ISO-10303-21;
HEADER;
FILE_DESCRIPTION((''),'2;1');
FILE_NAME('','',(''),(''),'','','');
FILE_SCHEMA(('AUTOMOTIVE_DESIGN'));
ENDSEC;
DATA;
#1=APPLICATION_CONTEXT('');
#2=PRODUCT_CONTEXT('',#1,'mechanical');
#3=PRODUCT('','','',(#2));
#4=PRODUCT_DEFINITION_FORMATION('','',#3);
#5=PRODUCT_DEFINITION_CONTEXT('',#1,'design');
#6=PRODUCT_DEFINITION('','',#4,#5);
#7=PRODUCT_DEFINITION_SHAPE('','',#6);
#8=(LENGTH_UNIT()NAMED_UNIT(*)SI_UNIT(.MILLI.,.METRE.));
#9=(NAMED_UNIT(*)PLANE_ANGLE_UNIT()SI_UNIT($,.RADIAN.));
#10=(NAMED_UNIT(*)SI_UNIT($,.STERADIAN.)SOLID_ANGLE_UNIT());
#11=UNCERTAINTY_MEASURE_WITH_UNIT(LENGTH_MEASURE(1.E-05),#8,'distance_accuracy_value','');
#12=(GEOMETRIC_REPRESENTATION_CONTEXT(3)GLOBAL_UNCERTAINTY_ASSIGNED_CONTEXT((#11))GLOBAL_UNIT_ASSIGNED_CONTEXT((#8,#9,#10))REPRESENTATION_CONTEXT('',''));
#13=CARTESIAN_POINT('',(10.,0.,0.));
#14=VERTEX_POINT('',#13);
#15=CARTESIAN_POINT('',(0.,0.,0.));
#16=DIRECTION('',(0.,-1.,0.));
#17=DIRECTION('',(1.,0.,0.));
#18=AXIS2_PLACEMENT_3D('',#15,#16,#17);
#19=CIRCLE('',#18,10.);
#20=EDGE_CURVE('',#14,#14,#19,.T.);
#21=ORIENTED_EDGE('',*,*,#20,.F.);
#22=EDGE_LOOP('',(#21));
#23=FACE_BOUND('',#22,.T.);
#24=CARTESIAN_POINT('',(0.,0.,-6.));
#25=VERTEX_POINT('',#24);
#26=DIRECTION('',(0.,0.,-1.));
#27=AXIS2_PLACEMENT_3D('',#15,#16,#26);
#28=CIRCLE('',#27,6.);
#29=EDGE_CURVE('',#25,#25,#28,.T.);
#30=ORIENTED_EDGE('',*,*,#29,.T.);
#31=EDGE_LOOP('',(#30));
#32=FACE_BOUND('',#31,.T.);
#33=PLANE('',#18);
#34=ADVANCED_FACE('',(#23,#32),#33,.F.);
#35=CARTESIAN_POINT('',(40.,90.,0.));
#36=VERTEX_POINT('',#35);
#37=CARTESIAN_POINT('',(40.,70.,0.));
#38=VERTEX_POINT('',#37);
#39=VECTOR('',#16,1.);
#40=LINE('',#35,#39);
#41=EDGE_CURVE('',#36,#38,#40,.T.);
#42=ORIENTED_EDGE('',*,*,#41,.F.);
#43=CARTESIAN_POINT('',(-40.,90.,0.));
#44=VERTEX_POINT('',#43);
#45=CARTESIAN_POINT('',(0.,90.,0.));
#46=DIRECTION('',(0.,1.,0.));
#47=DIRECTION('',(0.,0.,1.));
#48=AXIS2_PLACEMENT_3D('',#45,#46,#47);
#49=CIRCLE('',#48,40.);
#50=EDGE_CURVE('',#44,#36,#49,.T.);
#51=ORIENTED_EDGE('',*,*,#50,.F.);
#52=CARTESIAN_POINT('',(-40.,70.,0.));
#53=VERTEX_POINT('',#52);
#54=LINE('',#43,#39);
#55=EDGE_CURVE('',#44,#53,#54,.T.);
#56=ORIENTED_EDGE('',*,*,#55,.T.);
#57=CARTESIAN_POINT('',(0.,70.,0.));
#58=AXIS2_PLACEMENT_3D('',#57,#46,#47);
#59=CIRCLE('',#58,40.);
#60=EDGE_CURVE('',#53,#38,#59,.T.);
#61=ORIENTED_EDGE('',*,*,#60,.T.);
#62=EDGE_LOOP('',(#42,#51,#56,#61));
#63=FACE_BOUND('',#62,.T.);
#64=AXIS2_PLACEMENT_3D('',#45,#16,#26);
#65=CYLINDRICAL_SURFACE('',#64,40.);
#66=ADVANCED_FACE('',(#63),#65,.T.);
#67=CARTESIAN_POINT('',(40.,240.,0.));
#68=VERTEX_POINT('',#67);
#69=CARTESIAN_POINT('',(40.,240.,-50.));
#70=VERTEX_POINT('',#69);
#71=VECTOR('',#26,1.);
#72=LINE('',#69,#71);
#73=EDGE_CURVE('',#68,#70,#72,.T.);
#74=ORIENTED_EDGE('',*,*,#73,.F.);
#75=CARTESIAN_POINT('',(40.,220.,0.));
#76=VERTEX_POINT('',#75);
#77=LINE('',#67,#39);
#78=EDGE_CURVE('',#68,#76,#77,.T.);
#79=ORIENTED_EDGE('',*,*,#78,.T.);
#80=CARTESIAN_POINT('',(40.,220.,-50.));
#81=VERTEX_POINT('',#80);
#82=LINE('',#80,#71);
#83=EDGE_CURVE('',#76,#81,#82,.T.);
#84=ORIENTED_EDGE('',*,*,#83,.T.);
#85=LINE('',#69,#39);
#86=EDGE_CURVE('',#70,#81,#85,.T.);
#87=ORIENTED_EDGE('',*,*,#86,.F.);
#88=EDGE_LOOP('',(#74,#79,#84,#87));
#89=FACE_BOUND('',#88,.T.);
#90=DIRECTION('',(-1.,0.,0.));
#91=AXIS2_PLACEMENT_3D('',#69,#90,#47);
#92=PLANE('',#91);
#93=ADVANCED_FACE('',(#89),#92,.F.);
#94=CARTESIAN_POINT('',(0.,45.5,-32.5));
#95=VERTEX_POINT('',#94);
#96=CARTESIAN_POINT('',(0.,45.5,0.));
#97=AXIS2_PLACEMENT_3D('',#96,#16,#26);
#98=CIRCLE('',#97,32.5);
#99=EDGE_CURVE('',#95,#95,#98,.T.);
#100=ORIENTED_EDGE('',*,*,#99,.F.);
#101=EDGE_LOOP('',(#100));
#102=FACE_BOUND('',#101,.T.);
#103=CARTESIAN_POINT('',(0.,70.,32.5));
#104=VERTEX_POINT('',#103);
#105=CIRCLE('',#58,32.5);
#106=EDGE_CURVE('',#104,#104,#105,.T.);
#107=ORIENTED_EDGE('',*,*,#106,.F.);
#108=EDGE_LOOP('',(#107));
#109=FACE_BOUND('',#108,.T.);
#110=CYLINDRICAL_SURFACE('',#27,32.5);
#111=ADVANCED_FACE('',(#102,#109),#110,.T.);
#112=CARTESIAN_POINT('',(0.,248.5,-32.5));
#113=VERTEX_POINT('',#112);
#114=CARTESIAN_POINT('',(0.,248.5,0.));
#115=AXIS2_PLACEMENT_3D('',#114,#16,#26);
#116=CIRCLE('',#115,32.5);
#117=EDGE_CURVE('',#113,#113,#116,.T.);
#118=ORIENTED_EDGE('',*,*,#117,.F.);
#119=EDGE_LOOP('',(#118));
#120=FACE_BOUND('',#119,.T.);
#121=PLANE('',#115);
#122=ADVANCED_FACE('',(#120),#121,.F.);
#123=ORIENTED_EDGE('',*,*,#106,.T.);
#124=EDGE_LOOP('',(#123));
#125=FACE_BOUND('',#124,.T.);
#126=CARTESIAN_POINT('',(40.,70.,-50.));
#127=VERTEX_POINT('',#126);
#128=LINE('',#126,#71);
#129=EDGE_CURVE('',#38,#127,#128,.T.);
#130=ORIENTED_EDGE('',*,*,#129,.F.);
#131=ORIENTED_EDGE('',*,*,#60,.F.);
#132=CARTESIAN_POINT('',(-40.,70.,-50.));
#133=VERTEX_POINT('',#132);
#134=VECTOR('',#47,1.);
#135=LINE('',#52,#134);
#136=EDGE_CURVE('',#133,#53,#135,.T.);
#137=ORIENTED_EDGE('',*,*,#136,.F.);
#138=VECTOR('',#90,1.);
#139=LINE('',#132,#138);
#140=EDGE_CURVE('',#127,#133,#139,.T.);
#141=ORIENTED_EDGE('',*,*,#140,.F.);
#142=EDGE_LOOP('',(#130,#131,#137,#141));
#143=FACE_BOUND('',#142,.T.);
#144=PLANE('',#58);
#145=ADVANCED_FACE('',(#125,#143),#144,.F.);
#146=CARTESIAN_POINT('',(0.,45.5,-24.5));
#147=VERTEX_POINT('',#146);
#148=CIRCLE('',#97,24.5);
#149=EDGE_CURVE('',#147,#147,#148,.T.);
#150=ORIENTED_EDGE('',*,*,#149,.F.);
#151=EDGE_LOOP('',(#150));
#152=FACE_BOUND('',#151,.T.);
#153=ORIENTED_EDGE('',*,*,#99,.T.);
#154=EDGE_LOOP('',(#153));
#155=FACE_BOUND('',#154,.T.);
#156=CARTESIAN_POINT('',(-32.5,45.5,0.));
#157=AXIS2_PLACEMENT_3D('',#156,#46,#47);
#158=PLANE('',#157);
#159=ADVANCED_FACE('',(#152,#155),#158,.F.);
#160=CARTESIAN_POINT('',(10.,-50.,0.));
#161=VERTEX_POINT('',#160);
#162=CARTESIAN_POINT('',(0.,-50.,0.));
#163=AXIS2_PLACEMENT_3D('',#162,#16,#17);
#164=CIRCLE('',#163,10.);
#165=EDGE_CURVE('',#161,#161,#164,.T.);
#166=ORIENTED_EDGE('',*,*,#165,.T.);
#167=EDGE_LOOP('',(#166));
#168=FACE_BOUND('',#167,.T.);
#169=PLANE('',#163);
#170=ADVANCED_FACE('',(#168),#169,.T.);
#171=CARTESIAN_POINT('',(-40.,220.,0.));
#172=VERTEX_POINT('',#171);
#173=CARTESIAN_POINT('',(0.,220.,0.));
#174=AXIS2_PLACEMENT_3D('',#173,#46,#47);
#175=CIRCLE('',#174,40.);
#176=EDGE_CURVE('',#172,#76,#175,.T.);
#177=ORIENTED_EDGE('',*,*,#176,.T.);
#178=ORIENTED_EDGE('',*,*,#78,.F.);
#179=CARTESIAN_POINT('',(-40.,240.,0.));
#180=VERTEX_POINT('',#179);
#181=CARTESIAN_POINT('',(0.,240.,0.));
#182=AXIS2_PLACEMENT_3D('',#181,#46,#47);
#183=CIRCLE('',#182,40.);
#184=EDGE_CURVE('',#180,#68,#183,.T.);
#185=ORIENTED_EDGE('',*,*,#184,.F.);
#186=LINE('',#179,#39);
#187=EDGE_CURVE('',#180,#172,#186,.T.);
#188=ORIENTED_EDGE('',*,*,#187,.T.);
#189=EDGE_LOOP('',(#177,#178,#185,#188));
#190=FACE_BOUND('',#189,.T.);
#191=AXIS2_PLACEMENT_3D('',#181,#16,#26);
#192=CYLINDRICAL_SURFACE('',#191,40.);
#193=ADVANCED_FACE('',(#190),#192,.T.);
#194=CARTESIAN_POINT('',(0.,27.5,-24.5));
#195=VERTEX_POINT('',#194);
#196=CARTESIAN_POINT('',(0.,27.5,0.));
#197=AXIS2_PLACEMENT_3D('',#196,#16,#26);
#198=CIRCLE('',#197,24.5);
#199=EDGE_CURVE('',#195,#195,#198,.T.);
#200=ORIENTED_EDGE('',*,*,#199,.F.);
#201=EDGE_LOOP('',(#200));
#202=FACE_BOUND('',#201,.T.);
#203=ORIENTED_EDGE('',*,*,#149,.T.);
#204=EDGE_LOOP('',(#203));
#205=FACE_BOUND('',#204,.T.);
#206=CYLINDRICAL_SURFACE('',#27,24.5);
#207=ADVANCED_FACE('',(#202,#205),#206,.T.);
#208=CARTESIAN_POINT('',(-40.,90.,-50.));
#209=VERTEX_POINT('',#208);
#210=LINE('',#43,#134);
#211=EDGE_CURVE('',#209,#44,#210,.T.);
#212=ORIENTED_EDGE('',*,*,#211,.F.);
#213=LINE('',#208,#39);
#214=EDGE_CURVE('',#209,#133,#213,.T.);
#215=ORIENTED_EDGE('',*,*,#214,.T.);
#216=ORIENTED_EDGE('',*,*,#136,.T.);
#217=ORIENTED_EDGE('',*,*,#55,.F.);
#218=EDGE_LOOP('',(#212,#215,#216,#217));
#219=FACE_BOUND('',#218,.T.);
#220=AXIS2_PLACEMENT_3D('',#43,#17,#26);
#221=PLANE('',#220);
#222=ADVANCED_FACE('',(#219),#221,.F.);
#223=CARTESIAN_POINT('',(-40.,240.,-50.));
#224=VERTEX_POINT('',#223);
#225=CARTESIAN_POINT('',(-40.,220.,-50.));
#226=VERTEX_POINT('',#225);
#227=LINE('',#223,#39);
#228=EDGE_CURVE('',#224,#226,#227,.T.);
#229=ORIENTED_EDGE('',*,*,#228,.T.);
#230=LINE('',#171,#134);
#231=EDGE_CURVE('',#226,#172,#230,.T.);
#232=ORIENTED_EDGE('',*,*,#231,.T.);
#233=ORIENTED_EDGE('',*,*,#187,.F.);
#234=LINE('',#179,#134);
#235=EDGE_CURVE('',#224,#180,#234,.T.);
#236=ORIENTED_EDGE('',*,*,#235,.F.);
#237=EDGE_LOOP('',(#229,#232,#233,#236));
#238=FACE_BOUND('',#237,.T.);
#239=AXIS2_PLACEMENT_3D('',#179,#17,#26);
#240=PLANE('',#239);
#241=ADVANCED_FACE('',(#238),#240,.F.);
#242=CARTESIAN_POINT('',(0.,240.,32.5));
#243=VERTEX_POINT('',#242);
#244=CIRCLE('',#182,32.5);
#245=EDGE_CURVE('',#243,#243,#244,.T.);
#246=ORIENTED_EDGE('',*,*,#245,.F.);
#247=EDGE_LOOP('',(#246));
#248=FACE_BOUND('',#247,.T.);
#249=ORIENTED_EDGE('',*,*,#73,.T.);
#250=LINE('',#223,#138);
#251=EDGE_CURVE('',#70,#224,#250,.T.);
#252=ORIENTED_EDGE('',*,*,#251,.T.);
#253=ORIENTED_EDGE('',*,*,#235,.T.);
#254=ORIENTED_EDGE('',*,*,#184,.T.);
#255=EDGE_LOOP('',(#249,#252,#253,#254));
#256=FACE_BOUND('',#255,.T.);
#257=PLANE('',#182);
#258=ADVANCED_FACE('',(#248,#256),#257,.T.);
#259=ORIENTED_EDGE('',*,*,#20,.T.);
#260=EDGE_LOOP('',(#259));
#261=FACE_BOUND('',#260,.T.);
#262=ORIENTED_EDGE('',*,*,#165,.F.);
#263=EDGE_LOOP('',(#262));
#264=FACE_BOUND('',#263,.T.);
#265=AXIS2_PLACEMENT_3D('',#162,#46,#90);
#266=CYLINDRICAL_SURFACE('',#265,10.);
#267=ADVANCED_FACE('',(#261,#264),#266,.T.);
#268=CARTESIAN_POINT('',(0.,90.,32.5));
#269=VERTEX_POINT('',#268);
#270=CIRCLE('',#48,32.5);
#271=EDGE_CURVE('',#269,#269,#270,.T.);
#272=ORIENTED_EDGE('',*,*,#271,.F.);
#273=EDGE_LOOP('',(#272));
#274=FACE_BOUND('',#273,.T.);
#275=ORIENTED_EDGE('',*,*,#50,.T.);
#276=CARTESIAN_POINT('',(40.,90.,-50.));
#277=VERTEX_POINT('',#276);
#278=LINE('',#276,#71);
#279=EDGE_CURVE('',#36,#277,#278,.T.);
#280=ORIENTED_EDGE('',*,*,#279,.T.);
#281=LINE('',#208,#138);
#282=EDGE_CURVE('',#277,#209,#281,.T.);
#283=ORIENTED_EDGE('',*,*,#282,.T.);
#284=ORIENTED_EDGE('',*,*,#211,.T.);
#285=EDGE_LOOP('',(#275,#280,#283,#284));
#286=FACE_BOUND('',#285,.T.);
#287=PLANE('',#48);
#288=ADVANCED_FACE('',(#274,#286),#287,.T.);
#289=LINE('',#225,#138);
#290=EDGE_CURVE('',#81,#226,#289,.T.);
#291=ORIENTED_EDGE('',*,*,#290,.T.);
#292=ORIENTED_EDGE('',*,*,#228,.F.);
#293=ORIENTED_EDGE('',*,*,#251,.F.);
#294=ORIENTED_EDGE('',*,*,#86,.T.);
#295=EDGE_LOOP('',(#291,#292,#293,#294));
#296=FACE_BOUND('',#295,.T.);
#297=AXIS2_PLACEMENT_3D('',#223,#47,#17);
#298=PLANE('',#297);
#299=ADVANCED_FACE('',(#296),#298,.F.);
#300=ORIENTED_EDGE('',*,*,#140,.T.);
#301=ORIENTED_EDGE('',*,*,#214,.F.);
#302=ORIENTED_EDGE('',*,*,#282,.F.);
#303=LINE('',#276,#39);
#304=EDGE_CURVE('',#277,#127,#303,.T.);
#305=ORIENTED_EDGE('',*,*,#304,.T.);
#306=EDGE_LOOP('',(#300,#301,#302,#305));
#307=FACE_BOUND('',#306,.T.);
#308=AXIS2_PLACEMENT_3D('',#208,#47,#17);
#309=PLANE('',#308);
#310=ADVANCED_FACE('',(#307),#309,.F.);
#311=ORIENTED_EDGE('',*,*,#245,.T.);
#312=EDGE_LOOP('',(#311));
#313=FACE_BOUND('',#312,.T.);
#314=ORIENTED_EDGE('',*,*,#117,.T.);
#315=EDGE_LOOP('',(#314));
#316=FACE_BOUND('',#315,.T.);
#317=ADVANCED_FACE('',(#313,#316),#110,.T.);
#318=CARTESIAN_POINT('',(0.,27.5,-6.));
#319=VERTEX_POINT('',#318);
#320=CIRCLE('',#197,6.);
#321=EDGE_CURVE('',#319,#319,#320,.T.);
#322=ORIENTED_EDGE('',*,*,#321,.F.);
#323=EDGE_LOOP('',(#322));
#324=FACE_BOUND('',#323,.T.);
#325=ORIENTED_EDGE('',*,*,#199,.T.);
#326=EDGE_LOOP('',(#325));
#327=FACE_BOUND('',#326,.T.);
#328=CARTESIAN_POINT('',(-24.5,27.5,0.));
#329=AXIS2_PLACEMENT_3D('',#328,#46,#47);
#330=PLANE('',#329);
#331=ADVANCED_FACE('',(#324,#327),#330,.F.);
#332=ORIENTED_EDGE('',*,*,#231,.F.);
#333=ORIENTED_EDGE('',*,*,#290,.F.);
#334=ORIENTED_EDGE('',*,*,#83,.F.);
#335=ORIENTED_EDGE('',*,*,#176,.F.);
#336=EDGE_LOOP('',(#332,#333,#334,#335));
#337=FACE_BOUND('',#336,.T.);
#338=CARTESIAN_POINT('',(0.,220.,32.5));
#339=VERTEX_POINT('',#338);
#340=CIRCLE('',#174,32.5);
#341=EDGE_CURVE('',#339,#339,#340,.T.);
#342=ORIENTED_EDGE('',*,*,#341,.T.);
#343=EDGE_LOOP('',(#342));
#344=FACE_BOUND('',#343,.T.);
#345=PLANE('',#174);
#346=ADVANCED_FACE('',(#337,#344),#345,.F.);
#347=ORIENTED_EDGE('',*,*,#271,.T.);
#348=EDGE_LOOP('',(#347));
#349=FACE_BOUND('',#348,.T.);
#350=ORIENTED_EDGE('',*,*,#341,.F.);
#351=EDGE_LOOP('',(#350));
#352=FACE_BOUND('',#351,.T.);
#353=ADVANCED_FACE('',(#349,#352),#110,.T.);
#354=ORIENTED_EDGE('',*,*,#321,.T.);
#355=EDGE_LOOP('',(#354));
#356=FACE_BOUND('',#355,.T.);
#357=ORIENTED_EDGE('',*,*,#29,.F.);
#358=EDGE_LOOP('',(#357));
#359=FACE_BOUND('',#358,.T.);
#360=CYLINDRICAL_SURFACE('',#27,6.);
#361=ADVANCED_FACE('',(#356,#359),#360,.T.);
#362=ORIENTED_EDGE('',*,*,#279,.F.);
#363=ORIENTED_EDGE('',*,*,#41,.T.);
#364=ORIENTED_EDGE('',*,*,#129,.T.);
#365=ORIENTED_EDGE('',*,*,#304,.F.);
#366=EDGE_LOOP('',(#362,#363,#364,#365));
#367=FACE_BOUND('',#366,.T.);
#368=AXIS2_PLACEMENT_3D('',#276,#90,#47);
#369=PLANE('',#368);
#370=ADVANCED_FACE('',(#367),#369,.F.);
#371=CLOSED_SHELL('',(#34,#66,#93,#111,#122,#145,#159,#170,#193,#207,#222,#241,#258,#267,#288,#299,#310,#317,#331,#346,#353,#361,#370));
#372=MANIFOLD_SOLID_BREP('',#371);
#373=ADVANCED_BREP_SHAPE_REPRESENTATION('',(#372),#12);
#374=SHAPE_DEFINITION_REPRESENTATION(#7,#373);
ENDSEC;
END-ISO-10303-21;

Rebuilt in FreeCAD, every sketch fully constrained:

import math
import FreeCAD as App
import Part
import Sketcher
from FreeCAD import Vector
Q = App.Units.Quantity

doc = App.newDocument("Part")
body = doc.addObject("PartDesign::Body", "Body")

# Sketch on XY plane
sketch1 = body.newObject("Sketcher::SketchObject", "Sketch")
sketch1.AttachmentSupport = (doc.getObject("XY_Plane"), [""])
sketch1.MapMode = "FlatFace"
sketch1.addGeometry(Part.LineSegment(Vector(0, 248.5, 0), Vector(-32.5, 248.5, 0)), False)
sketch1.addGeometry(Part.LineSegment(Vector(-32.5, 248.5, 0), Vector(-32.5, 45.5, 0)), False)
sketch1.addGeometry(Part.LineSegment(Vector(-32.5, 45.5, 0), Vector(-24.5, 45.5, 0)), False)
sketch1.addGeometry(Part.LineSegment(Vector(-24.5, 45.5, 0), Vector(-24.5, 27.5, 0)), False)
sketch1.addGeometry(Part.LineSegment(Vector(-24.5, 27.5, 0), Vector(-6, 27.5, 0)), False)
sketch1.addGeometry(Part.LineSegment(Vector(-6, 27.5, 0), Vector(-6, 0, 0)), False)
sketch1.addGeometry(Part.LineSegment(Vector(-6, 0, 0), Vector(0, 0, 0)), False)
sketch1.addGeometry(Part.LineSegment(Vector(0, 0, 0), Vector(0, 248.5, 0)), False)
sketch1.addConstraint(Sketcher.Constraint("Coincident", 0, 2, 1, 1))
sketch1.addConstraint(Sketcher.Constraint("Coincident", 1, 2, 2, 1))
sketch1.addConstraint(Sketcher.Constraint("Coincident", 2, 2, 3, 1))
sketch1.addConstraint(Sketcher.Constraint("Coincident", 3, 2, 4, 1))
sketch1.addConstraint(Sketcher.Constraint("Coincident", 4, 2, 5, 1))
sketch1.addConstraint(Sketcher.Constraint("Coincident", 5, 2, 6, 1))
sketch1.addConstraint(Sketcher.Constraint("Coincident", 6, 2, 7, 1))
sketch1.addConstraint(Sketcher.Constraint("Coincident", 7, 2, 0, 1))
sketch1.addConstraint(Sketcher.Constraint("Horizontal", 0))
sketch1.addConstraint(Sketcher.Constraint("Vertical", 1))
sketch1.addConstraint(Sketcher.Constraint("Horizontal", 2))
sketch1.addConstraint(Sketcher.Constraint("Vertical", 3))
sketch1.addConstraint(Sketcher.Constraint("Horizontal", 4))
sketch1.addConstraint(Sketcher.Constraint("Vertical", 5))
sketch1.addConstraint(Sketcher.Constraint("Horizontal", 6))
sketch1.addConstraint(Sketcher.Constraint("Vertical", 7))
sketch1.addConstraint(Sketcher.Constraint("Coincident", 6, 2, -1, 1))
sketch1.addConstraint(Sketcher.Constraint("DistanceX", 2, 1, 2, 2, Q("8 mm")))
sketch1.addConstraint(Sketcher.Constraint("DistanceX", 6, 1, 6, 2, Q("6 mm")))
sketch1.addConstraint(Sketcher.Constraint("DistanceY", 1, 2, 1, 1, Q("203 mm")))
sketch1.addConstraint(Sketcher.Constraint("DistanceY", 3, 2, 3, 1, Q("18 mm")))
sketch1.addConstraint(Sketcher.Constraint("DistanceX", 0, 2, 0, 1, Q("32.5 mm")))
sketch1.addConstraint(Sketcher.Constraint("DistanceY", 5, 2, 5, 1, Q("27.5 mm")))
revolution = body.newObject("PartDesign::Revolution", "Revolution")
revolution.Profile = sketch1
revolution.ReferenceAxis = (sketch1, ["V_Axis"])
revolution.Angle = 360

# Sketch on XZ plane
sketch2 = body.newObject("Sketcher::SketchObject", "Sketch001")
sketch2.AttachmentSupport = (doc.getObject("XZ_Plane"), [""])
sketch2.MapMode = "FlatFace"
sketch2.AttachmentOffset = App.Placement(Vector(0, 0, -70), App.Rotation())
sketch2.addGeometry(Part.LineSegment(Vector(-40, -50, 0), Vector(-40, 0, 0)), False)
sketch2.addGeometry(Part.ArcOfCircle(Part.Circle(Vector(0, 0, 0), Vector(0, 0, 1), 40), math.radians(0), math.radians(180)), False)
sketch2.addGeometry(Part.LineSegment(Vector(40, 0, 0), Vector(40, -50, 0)), False)
sketch2.addGeometry(Part.LineSegment(Vector(40, -50, 0), Vector(-40, -50, 0)), False)
sketch2.addGeometry(Part.Circle(Vector(0, 0, 0), Vector(0, 0, 1), 32.5), False)
sketch2.addConstraint(Sketcher.Constraint("Tangent", 0, 2, 1, 2))
sketch2.addConstraint(Sketcher.Constraint("Tangent", 1, 1, 2, 1))
sketch2.addConstraint(Sketcher.Constraint("Coincident", 2, 2, 3, 1))
sketch2.addConstraint(Sketcher.Constraint("Coincident", 3, 2, 0, 1))
sketch2.addConstraint(Sketcher.Constraint("Vertical", 0))
sketch2.addConstraint(Sketcher.Constraint("Vertical", 2))
sketch2.addConstraint(Sketcher.Constraint("Horizontal", 3))
sketch2.addConstraint(Sketcher.Constraint("Coincident", 1, 3, -1, 1))
sketch2.addConstraint(Sketcher.Constraint("Coincident", 4, 3, -1, 1))
sketch2.addConstraint(Sketcher.Constraint("Diameter", 4, Q("65 mm")))
sketch2.addConstraint(Sketcher.Constraint("Radius", 1, Q("40 mm")))
sketch2.addConstraint(Sketcher.Constraint("DistanceY", 0, 1, 0, 2, Q("50 mm")))
pad1 = body.newObject("PartDesign::Pad", "Pad")
pad1.Profile = sketch2
pad1.Length = 20
pad1.Reversed = True
doc.recompute()

linearpattern = body.newObject("PartDesign::LinearPattern", "LinearPattern")
linearpattern.Originals = [pad1]
linearpattern.Direction = (doc.getObject("Y_Axis"), [""])
linearpattern.Mode = "offset"
linearpattern.Offset = 150
linearpattern.Occurrences = 2
body.Tip = linearpattern

# Sketch on XZ plane
sketch3 = body.newObject("Sketcher::SketchObject", "Sketch002")
sketch3.AttachmentSupport = (doc.getObject("XZ_Plane"), [""])
sketch3.MapMode = "FlatFace"
sketch3.addGeometry(Part.Circle(Vector(0, 0, 0), Vector(0, 0, 1), 10), False)
sketch3.addConstraint(Sketcher.Constraint("Coincident", 0, 3, -1, 1))
sketch3.addConstraint(Sketcher.Constraint("Diameter", 0, Q("20 mm")))
pad2 = body.newObject("PartDesign::Pad", "Pad001")
pad2.Profile = sketch3
pad2.Length = 50

doc.recompute()
